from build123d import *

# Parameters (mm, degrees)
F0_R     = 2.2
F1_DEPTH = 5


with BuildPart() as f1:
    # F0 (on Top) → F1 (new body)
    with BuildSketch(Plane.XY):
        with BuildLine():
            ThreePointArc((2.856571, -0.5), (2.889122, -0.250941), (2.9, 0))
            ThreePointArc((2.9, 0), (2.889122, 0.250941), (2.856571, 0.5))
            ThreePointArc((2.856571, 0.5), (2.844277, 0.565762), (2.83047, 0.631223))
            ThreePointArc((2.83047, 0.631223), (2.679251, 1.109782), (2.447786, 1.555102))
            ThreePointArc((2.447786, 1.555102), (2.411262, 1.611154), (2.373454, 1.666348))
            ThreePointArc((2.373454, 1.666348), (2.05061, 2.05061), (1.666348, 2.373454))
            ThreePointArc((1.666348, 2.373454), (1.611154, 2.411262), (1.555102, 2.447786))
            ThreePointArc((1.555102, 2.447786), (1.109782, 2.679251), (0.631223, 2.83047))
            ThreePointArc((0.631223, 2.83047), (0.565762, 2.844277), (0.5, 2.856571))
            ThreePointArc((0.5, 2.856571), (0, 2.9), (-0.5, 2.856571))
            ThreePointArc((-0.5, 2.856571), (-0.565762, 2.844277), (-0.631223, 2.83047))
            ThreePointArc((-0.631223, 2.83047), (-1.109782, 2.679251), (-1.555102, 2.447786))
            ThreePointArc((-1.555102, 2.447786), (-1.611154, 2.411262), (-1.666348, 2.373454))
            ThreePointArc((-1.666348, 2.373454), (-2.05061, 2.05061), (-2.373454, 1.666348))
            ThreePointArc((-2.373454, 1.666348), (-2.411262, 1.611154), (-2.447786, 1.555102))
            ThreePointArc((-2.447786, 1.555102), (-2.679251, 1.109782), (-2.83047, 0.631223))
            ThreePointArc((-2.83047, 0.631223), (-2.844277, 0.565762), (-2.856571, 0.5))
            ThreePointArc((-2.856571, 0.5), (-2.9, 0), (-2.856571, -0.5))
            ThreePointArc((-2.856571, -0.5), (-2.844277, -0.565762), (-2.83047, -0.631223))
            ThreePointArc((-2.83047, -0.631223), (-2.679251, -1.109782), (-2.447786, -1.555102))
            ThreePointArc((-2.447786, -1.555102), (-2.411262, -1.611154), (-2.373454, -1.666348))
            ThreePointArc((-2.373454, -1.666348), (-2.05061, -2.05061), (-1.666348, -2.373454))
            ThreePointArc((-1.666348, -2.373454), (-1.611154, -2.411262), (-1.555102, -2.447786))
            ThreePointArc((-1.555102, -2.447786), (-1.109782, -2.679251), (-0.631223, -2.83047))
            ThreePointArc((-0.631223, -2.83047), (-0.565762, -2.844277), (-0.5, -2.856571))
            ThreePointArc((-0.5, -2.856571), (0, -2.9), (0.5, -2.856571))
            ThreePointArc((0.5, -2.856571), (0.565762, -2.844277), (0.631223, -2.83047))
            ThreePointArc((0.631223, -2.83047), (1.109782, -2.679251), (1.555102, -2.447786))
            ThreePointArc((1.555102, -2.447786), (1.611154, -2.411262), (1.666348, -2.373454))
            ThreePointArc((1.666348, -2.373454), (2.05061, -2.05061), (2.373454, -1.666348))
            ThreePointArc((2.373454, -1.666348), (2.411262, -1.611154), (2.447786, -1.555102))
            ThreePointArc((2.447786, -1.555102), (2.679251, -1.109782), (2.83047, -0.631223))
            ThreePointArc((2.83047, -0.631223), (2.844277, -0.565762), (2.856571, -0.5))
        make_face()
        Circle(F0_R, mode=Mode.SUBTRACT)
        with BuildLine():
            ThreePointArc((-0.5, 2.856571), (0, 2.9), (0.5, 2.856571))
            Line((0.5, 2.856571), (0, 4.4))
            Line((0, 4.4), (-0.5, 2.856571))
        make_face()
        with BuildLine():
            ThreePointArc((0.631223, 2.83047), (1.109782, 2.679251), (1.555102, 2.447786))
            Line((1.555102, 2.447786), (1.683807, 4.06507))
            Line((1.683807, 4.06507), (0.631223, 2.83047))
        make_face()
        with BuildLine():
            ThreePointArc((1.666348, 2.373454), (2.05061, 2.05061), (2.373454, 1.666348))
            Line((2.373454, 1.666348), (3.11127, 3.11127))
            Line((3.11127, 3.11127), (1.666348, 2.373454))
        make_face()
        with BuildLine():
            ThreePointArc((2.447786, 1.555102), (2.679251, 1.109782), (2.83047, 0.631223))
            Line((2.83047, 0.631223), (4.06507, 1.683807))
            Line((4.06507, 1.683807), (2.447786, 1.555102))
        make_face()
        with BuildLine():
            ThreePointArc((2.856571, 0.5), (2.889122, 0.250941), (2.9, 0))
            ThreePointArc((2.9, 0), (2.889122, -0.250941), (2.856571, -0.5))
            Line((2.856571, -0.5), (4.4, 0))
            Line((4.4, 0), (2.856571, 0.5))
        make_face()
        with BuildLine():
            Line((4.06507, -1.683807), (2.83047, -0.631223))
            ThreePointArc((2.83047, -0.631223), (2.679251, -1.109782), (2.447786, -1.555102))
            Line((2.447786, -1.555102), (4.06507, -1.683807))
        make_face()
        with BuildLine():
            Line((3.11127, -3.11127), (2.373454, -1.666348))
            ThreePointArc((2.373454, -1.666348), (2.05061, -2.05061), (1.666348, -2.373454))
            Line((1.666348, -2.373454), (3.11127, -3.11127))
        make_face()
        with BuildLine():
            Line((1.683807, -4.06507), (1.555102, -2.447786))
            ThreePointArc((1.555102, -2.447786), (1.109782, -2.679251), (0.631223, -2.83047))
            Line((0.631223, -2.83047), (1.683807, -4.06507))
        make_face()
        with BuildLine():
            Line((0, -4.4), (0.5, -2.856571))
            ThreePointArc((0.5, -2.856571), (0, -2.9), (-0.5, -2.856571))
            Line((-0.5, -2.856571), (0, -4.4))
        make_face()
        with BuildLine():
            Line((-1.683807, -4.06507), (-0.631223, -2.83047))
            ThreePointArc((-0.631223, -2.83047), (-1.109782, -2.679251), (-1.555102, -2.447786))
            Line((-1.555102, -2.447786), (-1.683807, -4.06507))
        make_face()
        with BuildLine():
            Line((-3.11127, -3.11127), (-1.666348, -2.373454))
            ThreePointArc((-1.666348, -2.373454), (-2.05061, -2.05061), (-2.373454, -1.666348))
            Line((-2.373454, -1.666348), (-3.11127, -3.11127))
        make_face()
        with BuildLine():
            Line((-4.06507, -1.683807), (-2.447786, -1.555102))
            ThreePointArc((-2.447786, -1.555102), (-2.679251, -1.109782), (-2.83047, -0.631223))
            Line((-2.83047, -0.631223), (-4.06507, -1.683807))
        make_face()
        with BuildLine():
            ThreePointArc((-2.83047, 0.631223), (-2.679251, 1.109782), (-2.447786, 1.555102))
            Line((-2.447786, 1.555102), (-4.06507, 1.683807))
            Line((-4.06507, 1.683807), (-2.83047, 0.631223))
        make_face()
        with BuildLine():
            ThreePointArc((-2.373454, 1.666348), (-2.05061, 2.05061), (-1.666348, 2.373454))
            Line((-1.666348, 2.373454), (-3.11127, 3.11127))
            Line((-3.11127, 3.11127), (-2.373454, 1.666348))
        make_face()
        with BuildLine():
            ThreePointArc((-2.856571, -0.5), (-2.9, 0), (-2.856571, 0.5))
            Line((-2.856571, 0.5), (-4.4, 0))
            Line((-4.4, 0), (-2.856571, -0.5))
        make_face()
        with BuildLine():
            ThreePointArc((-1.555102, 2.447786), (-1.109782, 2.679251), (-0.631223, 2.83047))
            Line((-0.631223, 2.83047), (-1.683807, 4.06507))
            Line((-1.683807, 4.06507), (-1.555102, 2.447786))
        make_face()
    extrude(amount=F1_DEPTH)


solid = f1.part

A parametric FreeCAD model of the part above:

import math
import FreeCAD as App
import Part
import Sketcher
from FreeCAD import Vector

doc = App.newDocument("Part")
body = doc.addObject("PartDesign::Body", "Body")

# Sketch on XY plane
sketch1 = doc.addObject("Sketcher::SketchObject", "Sketch")
body.addObject(sketch1)
sketch1.AttachmentSupport = (doc.XY_Plane, [""])
sketch1.MapMode = "FlatFace"
sketch1.addGeometry([
    Part.ArcOfCircle(Part.Circle(Vector(-0.001335, -0.000246, 0), Vector(0, 0, 1), 2.901357), math.radians(9.928441), math.radians(12.570822)),  # 0
    Part.LineSegment(Vector(2.83047, 0.631223, 0), Vector(4.06507, 1.683807, 0)),  # 1
    Part.LineSegment(Vector(4.06507, 1.683807, 0), Vector(2.447786, 1.555102, 0)),  # 2
    Part.ArcOfCircle(Part.Circle(Vector(0.0014, 0.00094, 0), Vector(0, 0, 1), 2.898314), math.radians(32.427344), math.radians(35.072513)),  # 3
    Part.LineSegment(Vector(2.373454, 1.666348, 0), Vector(3.11127, 3.11127, 0)),  # 4
    Part.LineSegment(Vector(3.11127, 3.11127, 0), Vector(1.666348, 2.373454, 0)),  # 5
    Part.ArcOfCircle(Part.Circle(Vector(0.00094, 0.0014, 0), Vector(0, 0, 1), 2.898314), math.radians(54.927487), math.radians(57.572656)),  # 6
    Part.LineSegment(Vector(1.555102, 2.447786, 0), Vector(1.683807, 4.06507, 0)),  # 7
    Part.LineSegment(Vector(1.683807, 4.06507, 0), Vector(0.631223, 2.83047, 0)),  # 8
    Part.ArcOfCircle(Part.Circle(Vector(-0.000246, -0.001335, 0), Vector(0, 0, 1), 2.901357), math.radians(77.429178), math.radians(80.071559)),  # 9
    Part.LineSegment(Vector(0.5, 2.856571, 0), Vector(0, 4.4, 0)),  # 10
    Part.LineSegment(Vector(0, 4.4, 0), Vector(-0.5, 2.856571, 0)),  # 11
    Part.ArcOfCircle(Part.Circle(Vector(0.000246, -0.001335, 0), Vector(0, 0, 1), 2.901357), math.radians(99.928441), math.radians(102.570822)),  # 12
    Part.LineSegment(Vector(-0.631223, 2.83047, 0), Vector(-1.683807, 4.06507, 0)),  # 13
    Part.LineSegment(Vector(-1.683807, 4.06507, 0), Vector(-1.555102, 2.447786, 0)),  # 14
    Part.ArcOfCircle(Part.Circle(Vector(-0.00094, 0.0014, 0), Vector(0, 0, 1), 2.898314), math.radians(122.427344), math.radians(125.072513)),  # 15
    Part.LineSegment(Vector(-1.666348, 2.373454, 0), Vector(-3.11127, 3.11127, 0)),  # 16
    Part.LineSegment(Vector(-3.11127, 3.11127, 0), Vector(-2.373454, 1.666348, 0)),  # 17
    Part.ArcOfCircle(Part.Circle(Vector(-0.0014, 0.00094, 0), Vector(0, 0, 1), 2.898314), math.radians(144.927487), math.radians(147.572656)),  # 18
    Part.LineSegment(Vector(-2.447786, 1.555102, 0), Vector(-4.06507, 1.683807, 0)),  # 19
    Part.LineSegment(Vector(-4.06507, 1.683807, 0), Vector(-2.83047, 0.631223, 0)),  # 20
    Part.ArcOfCircle(Part.Circle(Vector(0.001335, -0.000246, 0), Vector(0, 0, 1), 2.901357), math.radians(167.429178), math.radians(170.071559)),  # 21
    Part.LineSegment(Vector(-2.856571, 0.5, 0), Vector(-4.4, 0, 0)),  # 22
    Part.LineSegment(Vector(-4.4, 0, 0), Vector(-2.856571, -0.5, 0)),  # 23
    Part.ArcOfCircle(Part.Circle(Vector(0.001335, 0.000246, 0), Vector(0, 0, 1), 2.901357), math.radians(-170.071559), math.radians(-167.429178)),  # 24
    Part.LineSegment(Vector(-2.83047, -0.631223, 0), Vector(-4.06507, -1.683807, 0)),  # 25
    Part.LineSegment(Vector(-4.06507, -1.683807, 0), Vector(-2.447786, -1.555102, 0)),  # 26
    Part.ArcOfCircle(Part.Circle(Vector(-0.0014, -0.00094, 0), Vector(0, 0, 1), 2.898314), math.radians(-147.572656), math.radians(-144.927487)),  # 27
    Part.LineSegment(Vector(-2.373454, -1.666348, 0), Vector(-3.11127, -3.11127, 0)),  # 28
    Part.LineSegment(Vector(-3.11127, -3.11127, 0), Vector(-1.666348, -2.373454, 0)),  # 29
    Part.ArcOfCircle(Part.Circle(Vector(-0.00094, -0.0014, 0), Vector(0, 0, 1), 2.898314), math.radians(-125.072513), math.radians(-122.427344)),  # 30
    Part.LineSegment(Vector(-1.555102, -2.447786, 0), Vector(-1.683807, -4.06507, 0)),  # 31
    Part.LineSegment(Vector(-1.683807, -4.06507, 0), Vector(-0.631223, -2.83047, 0)),  # 32
    Part.ArcOfCircle(Part.Circle(Vector(0.000246, 0.001335, 0), Vector(0, 0, 1), 2.901357), math.radians(-102.570822), math.radians(-99.928441)),  # 33
    Part.LineSegment(Vector(-0.5, -2.856571, 0), Vector(0, -4.4, 0)),  # 34
    Part.LineSegment(Vector(0, -4.4, 0), Vector(0.5, -2.856571, 0)),  # 35
    Part.ArcOfCircle(Part.Circle(Vector(-0.000246, 0.001335, 0), Vector(0, 0, 1), 2.901357), math.radians(-80.071559), math.radians(-77.429178)),  # 36
    Part.LineSegment(Vector(0.631223, -2.83047, 0), Vector(1.683807, -4.06507, 0)),  # 37
    Part.LineSegment(Vector(1.683807, -4.06507, 0), Vector(1.555102, -2.447786, 0)),  # 38
    Part.ArcOfCircle(Part.Circle(Vector(0.00094, -0.0014, 0), Vector(0, 0, 1), 2.898314), math.radians(-57.572656), math.radians(-54.927487)),  # 39
    Part.LineSegment(Vector(1.666348, -2.373454, 0), Vector(3.11127, -3.11127, 0)),  # 40
    Part.LineSegment(Vector(3.11127, -3.11127, 0), Vector(2.373454, -1.666348, 0)),  # 41
    Part.ArcOfCircle(Part.Circle(Vector(0.0014, -0.00094, 0), Vector(0, 0, 1), 2.898314), math.radians(-35.072513), math.radians(-32.427344)),  # 42
    Part.LineSegment(Vector(2.447786, -1.555102, 0), Vector(4.06507, -1.683807, 0)),  # 43
    Part.LineSegment(Vector(4.06507, -1.683807, 0), Vector(2.83047, -0.631223, 0)),  # 44
    Part.ArcOfCircle(Part.Circle(Vector(-0.001335, 0.000246, 0), Vector(0, 0, 1), 2.901357), math.radians(-12.570822), math.radians(-9.928441)),  # 45
    Part.LineSegment(Vector(2.856571, -0.5, 0), Vector(4.4, 0, 0)),  # 46
    Part.LineSegment(Vector(4.4, 0, 0), Vector(2.856571, 0.5, 0)),  # 47
    Part.Circle(Vector(0, 0, 0), Vector(0, 0, 1), 2.2),  # 48
], False)
sketch1.addConstraint([
    Sketcher.Constraint("Coincident", 0, 2, 1, 1),
    Sketcher.Constraint("Coincident", 1, 2, 2, 1),
    Sketcher.Constraint("Coincident", 2, 2, 3, 1),
    Sketcher.Constraint("Coincident", 3, 2, 4, 1),
    Sketcher.Constraint("Coincident", 4, 2, 5, 1),
    Sketcher.Constraint("Coincident", 5, 2, 6, 1),
    Sketcher.Constraint("Coincident", 6, 2, 7, 1),
    Sketcher.Constraint("Coincident", 7, 2, 8, 1),
    Sketcher.Constraint("Coincident", 8, 2, 9, 1),
    Sketcher.Constraint("Coincident", 9, 2, 10, 1),
    Sketcher.Constraint("Coincident", 10, 2, 11, 1),
    Sketcher.Constraint("Coincident", 11, 2, 12, 1),
    Sketcher.Constraint("Coincident", 12, 2, 13, 1),
    Sketcher.Constraint("Coincident", 13, 2, 14, 1),
    Sketcher.Constraint("Coincident", 14, 2, 15, 1),
    Sketcher.Constraint("Coincident", 15, 2, 16, 1),
    Sketcher.Constraint("Coincident", 16, 2, 17, 1),
    Sketcher.Constraint("Coincident", 17, 2, 18, 1),
    Sketcher.Constraint("Coincident", 18, 2, 19, 1),
    Sketcher.Constraint("Coincident", 19, 2, 20, 1),
    Sketcher.Constraint("Coincident", 20, 2, 21, 1),
    Sketcher.Constraint("Coincident", 21, 2, 22, 1),
    Sketcher.Constraint("Coincident", 22, 2, 23, 1),
    Sketcher.Constraint("Coincident", 23, 2, 24, 1),
    Sketcher.Constraint("Coincident", 24, 2, 25, 1),
    Sketcher.Constraint("Coincident", 25, 2, 26, 1),
    Sketcher.Constraint("Coincident", 26, 2, 27, 1),
    Sketcher.Constraint("Coincident", 27, 2, 28, 1),
    Sketcher.Constraint("Coincident", 28, 2, 29, 1),
    Sketcher.Constraint("Coincident", 29, 2, 30, 1),
    Sketcher.Constraint("Coincident", 30, 2, 31, 1),
    Sketcher.Constraint("Coincident", 31, 2, 32, 1),
    Sketcher.Constraint("Coincident", 32, 2, 33, 1),
    Sketcher.Constraint("Coincident", 33, 2, 34, 1),
    Sketcher.Constraint("Coincident", 34, 2, 35, 1),
    Sketcher.Constraint("Coincident", 35, 2, 36, 1),
    Sketcher.Constraint("Coincident", 36, 2, 37, 1),
    Sketcher.Constraint("Coincident", 37, 2, 38, 1),
    Sketcher.Constraint("Coincident", 38, 2, 39, 1),
    Sketcher.Constraint("Coincident", 39, 2, 40, 1),
    Sketcher.Constraint("Coincident", 40, 2, 41, 1),
    Sketcher.Constraint("Coincident", 41, 2, 42, 1),
    Sketcher.Constraint("Coincident", 42, 2, 43, 1),
    Sketcher.Constraint("Coincident", 43, 2, 44, 1),
    Sketcher.Constraint("Coincident", 44, 2, 45, 1),
    Sketcher.Constraint("Coincident", 45, 2, 46, 1),
    Sketcher.Constraint("Coincident", 46, 2, 47, 1),
    Sketcher.Constraint("Coincident", 47, 2, 0, 1),
    Sketcher.Constraint("Coincident", 48, 3, -1, 1),
    Sketcher.Constraint("Equal", 3, 6),
    Sketcher.Constraint("Equal", 0, 9),
    Sketcher.Constraint("Equal", 9, 12),
    Sketcher.Constraint("Equal", 6, 15),
    Sketcher.Constraint("Equal", 15, 18),
    Sketcher.Constraint("Equal", 12, 21),
    Sketcher.Constraint("Equal", 21, 24),
    Sketcher.Constraint("Equal", 18, 27),
    Sketcher.Constraint("Equal", 27, 30),
    Sketcher.Constraint("Equal", 24, 33),
    Sketcher.Constraint("Equal", 33, 36),
    Sketcher.Constraint("Equal", 30, 39),
    Sketcher.Constraint("Equal", 39, 42),
    Sketcher.Constraint("Equal", 36, 45),
    Sketcher.Constraint("Symmetric", 0, 3, 24, 3, -1, 1),
    Sketcher.Constraint("Symmetric", 3, 3, 27, 3, -1, 1),
    Sketcher.Constraint("Symmetric", 6, 3, 30, 3, -1, 1),
    Sketcher.Constraint("Symmetric", 9, 3, 33, 3, -1, 1),
    Sketcher.Constraint("Symmetric", 12, 3, 36, 3, -1, 1),
    Sketcher.Constraint("Symmetric", 15, 3, 39, 3, -1, 1),
    Sketcher.Constraint("Symmetric", 18, 3, 42, 3, -1, 1),
    Sketcher.Constraint("Symmetric", 21, 3, 45, 3, -1, 1),
    Sketcher.Constraint("Symmetric", 1, 2, 25, 2, -1, 1),
    Sketcher.Constraint("Symmetric", 4, 2, 28, 2, -1, 1),
    Sketcher.Constraint("Symmetric", 7, 2, 31, 2, -1, 1),
    Sketcher.Constraint("Symmetric", 10, 2, 34, 2, -1, 1),
    Sketcher.Constraint("Symmetric", 13, 2, 37, 2, -1, 1),
    Sketcher.Constraint("Symmetric", 16, 2, 40, 2, -1, 1),
    Sketcher.Constraint("Symmetric", 19, 2, 43, 2, -1, 1),
    Sketcher.Constraint("Symmetric", 22, 2, 46, 2, -1, 1),
    Sketcher.Constraint("Symmetric", 9, 3, 12, 3, -2),
    Sketcher.Constraint("Symmetric", 6, 3, 15, 3, -2),
    Sketcher.Constraint("Symmetric", 3, 3, 18, 3, -2),
    Sketcher.Constraint("Symmetric", 0, 3, 21, 3, -2),
    Sketcher.Constraint("Symmetric", 7, 2, 13, 2, -2),
    Sketcher.Constraint("Symmetric", 4, 2, 16, 2, -2),
    Sketcher.Constraint("Symmetric", 1, 2, 19, 2, -2),
    Sketcher.Constraint("PointOnObject", 10, 2, -2),
    Sketcher.Constraint("PointOnObject", 22, 2, -1),
    Sketcher.Constraint("Perpendicular", 1, 13),
    Sketcher.Constraint("Perpendicular", 2, 14),
    Sketcher.Constraint("Perpendicular", 4, 16),
    Sketcher.Constraint("Perpendicular", 5, 17),
    Sketcher.Constraint("Perpendicular", 7, 19),
    Sketcher.Constraint("Perpendicular", 8, 20),
    Sketcher.Constraint("Perpendicular", 10, 22),
    Sketcher.Constraint("Perpendicular", 11, 23),
    Sketcher.Constraint("Perpendicular", 13, 25),
    Sketcher.Constraint("Perpendicular", 14, 26),
    Sketcher.Constraint("Perpendicular", 16, 28),
    Sketcher.Constraint("Perpendicular", 17, 29),
    Sketcher.Constraint("Perpendicular", 19, 31),
    Sketcher.Constraint("Perpendicular", 20, 32),
    Sketcher.Constraint("Perpendicular", 22, 34),
    Sketcher.Constraint("Perpendicular", 23, 35),
    Sketcher.Constraint("Perpendicular", 25, 37),
    Sketcher.Constraint("Perpendicular", 26, 38),
    Sketcher.Constraint("Perpendicular", 28, 40),
    Sketcher.Constraint("Perpendicular", 29, 41),
    Sketcher.Constraint("Perpendicular", 31, 43),
    Sketcher.Constraint("Perpendicular", 32, 44),
    Sketcher.Constraint("Perpendicular", 34, 46),
    Sketcher.Constraint("Perpendicular", 35, 47),
    Sketcher.Constraint("Horizontal", 9, 2, 11, 2),
    Sketcher.Constraint("Horizontal", 8, 2, 12, 2),
    Sketcher.Constraint("Horizontal", 6, 2, 14, 2),
    Sketcher.Constraint("Horizontal", 5, 2, 15, 2),
    Sketcher.Constraint("Equal", 1, 2),
    Sketcher.Constraint("Equal", 2, 4),
    Sketcher.Constraint("Equal", 4, 5),
    Sketcher.Constraint("Equal", 5, 7),
    Sketcher.Constraint("Equal", 7, 8),
    Sketcher.Constraint("Equal", 8, 10),
    Sketcher.Constraint("Equal", 20, 22),
    Sketcher.Constraint("Diameter", 48, 4.4),
    Sketcher.Constraint("DistanceX", -1, 1, 9, 2, 0.5),
    Sketcher.Constraint("DistanceY", -1, 1, 10, 2, 4.4),
    Sketcher.Constraint("DistanceX", 22, 2, -1, 1, 4.4),
    Sketcher.Constraint("Radius", 0, 2.901357),
    Sketcher.Constraint("Radius", 3, 2.898314),
    Sketcher.Constraint("DistanceX", -1, 1, 3, 3, 0.0014),
    Sketcher.Constraint("DistanceY", -1, 1, 6, 3, 0.0014),
    Sketcher.Constraint("DistanceY", -1, 1, 3, 3, 0.00094),
    Sketcher.Constraint("DistanceX", -1, 1, 6, 3, 0.00094),
    Sketcher.Constraint("DistanceX", -1, 1, 0, 2, 2.83047),
    Sketcher.Constraint("DistanceX", -1, 1, 1, 2, 4.06507),
    Sketcher.Constraint("DistanceY", -1, 1, 3, 2, 1.666348),
    Sketcher.Constraint("DistanceX", -1, 1, 4, 2, 3.11127),
    Sketcher.Constraint("DistanceY", -1, 1, 7, 2, 4.06507),
    Sketcher.Constraint("DistanceX", 0, 3, -1, 1, 0.001335),
])
pad1 = doc.addObject("PartDesign::Pad", "Pad")
body.addObject(pad1)
pad1.Profile = sketch1
pad1.Length = 5

doc.recompute()
